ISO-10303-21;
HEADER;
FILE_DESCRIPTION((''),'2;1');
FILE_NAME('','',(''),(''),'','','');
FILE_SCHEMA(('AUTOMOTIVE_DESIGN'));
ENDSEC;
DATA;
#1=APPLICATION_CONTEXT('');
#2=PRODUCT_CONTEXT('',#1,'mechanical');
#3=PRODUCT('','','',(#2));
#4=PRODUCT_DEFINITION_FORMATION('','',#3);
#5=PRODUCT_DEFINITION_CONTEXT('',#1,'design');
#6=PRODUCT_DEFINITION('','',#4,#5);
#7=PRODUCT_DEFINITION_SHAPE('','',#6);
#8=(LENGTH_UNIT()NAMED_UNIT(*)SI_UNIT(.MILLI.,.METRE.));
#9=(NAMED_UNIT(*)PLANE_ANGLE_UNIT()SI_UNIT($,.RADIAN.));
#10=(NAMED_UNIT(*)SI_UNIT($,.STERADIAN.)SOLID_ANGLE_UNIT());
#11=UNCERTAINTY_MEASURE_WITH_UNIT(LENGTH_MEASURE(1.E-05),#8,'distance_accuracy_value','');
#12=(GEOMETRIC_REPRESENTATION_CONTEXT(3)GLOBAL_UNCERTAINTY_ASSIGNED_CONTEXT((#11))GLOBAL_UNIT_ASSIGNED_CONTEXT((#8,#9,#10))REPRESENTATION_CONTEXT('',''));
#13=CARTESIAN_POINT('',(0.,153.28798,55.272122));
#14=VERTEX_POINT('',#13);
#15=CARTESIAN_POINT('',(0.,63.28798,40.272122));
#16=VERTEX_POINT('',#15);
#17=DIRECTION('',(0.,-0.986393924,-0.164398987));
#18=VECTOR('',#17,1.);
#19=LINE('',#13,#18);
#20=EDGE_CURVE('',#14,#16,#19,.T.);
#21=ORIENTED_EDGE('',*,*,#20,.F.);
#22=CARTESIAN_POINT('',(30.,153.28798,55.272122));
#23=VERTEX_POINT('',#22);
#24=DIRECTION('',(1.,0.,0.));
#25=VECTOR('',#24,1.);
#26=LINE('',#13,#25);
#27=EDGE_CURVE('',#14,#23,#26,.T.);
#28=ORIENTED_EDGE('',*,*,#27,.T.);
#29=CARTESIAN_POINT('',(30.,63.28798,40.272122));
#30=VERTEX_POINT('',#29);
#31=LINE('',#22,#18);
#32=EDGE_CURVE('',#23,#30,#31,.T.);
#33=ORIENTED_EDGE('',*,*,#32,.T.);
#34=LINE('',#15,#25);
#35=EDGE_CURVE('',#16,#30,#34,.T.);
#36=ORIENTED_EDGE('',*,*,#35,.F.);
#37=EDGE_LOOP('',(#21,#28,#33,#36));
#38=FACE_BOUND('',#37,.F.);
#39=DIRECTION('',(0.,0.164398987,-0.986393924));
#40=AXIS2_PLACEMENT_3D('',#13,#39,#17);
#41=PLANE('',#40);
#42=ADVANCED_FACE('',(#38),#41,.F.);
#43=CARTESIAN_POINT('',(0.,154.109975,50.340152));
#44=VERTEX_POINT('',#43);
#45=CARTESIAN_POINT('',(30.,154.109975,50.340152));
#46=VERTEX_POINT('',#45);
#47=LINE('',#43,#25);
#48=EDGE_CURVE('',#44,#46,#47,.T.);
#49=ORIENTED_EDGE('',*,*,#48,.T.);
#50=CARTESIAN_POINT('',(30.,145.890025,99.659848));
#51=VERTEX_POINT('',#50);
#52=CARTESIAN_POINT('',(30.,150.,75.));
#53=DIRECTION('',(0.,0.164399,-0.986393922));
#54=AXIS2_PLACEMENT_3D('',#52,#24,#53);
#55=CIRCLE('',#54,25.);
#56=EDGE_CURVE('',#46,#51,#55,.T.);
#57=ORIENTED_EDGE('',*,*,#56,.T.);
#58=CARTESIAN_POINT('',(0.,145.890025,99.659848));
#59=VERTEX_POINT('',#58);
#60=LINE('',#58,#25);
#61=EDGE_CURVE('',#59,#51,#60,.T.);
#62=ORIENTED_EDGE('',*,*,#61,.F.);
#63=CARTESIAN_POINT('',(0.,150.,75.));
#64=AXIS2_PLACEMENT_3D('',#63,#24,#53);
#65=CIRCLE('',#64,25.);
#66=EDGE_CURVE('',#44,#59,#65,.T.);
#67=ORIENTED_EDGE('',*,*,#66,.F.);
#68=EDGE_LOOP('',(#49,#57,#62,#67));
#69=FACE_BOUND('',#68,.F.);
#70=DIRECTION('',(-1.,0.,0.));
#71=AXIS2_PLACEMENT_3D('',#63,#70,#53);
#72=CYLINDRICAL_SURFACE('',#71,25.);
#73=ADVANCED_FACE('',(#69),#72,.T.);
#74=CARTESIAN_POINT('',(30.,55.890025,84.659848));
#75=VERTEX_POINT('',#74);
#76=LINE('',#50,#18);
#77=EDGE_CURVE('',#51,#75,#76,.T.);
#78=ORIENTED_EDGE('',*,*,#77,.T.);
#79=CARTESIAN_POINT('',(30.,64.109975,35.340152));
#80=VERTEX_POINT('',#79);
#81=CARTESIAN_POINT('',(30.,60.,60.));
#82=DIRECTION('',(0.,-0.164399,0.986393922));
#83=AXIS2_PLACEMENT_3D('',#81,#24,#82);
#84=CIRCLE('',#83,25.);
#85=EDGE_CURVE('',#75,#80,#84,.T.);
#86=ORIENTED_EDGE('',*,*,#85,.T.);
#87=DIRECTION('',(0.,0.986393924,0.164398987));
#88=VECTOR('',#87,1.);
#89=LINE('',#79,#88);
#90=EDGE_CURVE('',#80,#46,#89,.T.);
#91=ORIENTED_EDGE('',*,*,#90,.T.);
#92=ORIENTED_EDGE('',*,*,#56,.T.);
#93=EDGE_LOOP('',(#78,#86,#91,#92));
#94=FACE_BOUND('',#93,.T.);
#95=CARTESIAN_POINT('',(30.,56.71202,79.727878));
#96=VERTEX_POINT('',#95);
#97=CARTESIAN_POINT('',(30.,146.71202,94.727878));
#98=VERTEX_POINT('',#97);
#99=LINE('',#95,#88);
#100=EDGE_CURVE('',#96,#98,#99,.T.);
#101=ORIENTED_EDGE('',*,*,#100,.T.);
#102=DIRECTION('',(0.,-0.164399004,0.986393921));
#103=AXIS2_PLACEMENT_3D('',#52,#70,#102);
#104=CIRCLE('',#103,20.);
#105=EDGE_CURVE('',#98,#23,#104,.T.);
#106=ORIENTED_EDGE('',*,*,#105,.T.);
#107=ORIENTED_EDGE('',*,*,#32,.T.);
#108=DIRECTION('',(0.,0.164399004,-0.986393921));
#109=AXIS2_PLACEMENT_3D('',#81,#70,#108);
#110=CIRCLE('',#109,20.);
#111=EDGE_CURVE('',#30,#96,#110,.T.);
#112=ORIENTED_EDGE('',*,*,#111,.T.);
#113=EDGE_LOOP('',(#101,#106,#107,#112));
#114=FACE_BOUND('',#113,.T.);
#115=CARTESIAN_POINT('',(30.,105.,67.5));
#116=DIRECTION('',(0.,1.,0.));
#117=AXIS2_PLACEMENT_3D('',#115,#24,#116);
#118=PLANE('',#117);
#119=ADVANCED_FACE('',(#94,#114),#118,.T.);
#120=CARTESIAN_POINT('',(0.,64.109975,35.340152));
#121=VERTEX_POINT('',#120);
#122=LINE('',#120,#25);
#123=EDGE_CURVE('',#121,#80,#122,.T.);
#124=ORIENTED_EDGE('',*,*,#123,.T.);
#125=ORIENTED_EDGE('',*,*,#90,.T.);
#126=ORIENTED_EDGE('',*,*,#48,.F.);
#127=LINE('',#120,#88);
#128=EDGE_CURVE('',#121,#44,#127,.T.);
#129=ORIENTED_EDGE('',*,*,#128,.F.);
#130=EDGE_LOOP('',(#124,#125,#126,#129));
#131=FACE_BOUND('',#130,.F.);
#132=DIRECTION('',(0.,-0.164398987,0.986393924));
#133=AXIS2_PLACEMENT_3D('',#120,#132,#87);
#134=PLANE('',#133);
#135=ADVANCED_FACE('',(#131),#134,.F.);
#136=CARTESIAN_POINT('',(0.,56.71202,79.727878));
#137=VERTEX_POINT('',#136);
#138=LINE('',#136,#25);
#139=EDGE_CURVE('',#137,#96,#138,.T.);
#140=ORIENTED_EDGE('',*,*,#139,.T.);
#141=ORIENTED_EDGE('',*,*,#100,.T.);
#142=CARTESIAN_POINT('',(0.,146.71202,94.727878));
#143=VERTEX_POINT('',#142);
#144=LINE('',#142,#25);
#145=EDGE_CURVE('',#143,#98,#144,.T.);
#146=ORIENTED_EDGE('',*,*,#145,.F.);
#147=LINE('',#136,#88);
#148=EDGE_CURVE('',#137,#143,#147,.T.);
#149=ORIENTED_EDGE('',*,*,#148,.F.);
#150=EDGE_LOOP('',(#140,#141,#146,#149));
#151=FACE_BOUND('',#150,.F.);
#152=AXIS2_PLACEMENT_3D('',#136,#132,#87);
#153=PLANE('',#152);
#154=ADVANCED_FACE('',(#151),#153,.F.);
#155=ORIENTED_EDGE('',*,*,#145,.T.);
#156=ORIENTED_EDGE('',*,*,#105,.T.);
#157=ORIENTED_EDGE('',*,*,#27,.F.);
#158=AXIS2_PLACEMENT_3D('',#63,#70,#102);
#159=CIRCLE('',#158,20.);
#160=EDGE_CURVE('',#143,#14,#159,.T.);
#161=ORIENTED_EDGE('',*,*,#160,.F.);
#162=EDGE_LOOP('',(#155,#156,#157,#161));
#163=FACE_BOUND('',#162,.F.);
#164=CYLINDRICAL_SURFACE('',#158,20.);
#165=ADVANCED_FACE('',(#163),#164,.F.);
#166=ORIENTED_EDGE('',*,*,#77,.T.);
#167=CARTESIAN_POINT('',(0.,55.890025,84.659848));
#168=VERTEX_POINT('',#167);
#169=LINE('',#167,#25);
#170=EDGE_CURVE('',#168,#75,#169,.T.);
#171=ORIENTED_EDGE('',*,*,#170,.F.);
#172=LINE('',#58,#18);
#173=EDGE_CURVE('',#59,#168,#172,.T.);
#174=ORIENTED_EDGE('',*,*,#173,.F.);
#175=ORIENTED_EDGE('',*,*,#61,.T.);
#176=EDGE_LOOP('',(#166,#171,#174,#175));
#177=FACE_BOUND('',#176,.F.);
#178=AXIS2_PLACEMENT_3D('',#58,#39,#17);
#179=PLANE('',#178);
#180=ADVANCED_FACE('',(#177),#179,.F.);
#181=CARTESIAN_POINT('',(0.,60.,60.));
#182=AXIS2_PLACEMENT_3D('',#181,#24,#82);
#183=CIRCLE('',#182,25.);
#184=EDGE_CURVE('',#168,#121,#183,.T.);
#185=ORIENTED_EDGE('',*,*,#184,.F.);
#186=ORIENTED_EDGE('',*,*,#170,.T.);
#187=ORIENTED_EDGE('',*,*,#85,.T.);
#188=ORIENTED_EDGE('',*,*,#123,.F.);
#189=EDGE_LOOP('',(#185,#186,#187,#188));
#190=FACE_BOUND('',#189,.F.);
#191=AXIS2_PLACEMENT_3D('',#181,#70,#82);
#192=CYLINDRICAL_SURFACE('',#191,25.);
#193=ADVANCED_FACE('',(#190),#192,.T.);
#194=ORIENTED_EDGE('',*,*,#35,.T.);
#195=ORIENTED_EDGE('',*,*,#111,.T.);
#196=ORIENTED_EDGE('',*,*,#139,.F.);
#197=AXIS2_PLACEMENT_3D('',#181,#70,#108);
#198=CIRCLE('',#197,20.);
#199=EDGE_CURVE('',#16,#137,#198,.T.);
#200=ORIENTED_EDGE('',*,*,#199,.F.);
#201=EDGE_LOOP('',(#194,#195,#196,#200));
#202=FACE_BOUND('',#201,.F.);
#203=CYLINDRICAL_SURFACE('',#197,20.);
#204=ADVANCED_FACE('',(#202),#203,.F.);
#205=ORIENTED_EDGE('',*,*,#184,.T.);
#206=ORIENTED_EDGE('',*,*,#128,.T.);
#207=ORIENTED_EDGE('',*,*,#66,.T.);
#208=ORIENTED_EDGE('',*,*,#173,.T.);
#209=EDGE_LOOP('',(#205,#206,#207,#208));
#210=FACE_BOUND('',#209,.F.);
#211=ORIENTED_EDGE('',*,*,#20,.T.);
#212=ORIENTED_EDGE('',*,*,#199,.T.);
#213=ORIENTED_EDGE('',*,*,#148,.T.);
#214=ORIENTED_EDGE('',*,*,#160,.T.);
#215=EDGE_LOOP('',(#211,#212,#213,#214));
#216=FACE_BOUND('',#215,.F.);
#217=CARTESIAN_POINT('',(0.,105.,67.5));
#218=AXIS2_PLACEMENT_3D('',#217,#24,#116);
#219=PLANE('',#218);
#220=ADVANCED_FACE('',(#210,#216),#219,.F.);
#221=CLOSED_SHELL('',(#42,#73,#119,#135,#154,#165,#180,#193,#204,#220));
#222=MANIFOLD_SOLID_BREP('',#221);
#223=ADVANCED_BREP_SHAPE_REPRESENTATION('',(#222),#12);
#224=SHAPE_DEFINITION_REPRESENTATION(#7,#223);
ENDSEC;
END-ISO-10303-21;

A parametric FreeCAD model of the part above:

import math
import FreeCAD as App
import Part
import Sketcher
from FreeCAD import Vector
Q = App.Units.Quantity

doc = App.newDocument("Part")
body = doc.addObject("PartDesign::Body", "Body")

sketch1 = doc.addObject("Sketcher::SketchObject", "Sketch")
body.addObject(sketch1)
sketch1.AttachmentSupport = (doc.YZ_Plane, [""])
sketch1.MapMode = "FlatFace"
sketch1.addGeometry([
    Part.ArcOfCircle(Part.Circle(Vector(60, 60, 0), Vector(0, 0, 1), 25), math.radians(99.462323), math.radians(279.462323)),
    Part.LineSegment(Vector(64.109975, 35.340152, 0), Vector(154.109975, 50.340152, 0)),
    Part.ArcOfCircle(Part.Circle(Vector(150, 75, 0), Vector(0, 0, 1), 25), math.radians(-80.537677), math.radians(99.462323)),
    Part.LineSegment(Vector(145.890025, 99.659848, 0), Vector(55.890025, 84.659848, 0)),
    Part.LineSegment(Vector(153.28798, 55.272122, 0), Vector(63.28798, 40.272122, 0)),
    Part.ArcOfCircle(Part.Circle(Vector(60, 60, 0), Vector(0, 0, 1), 20), math.radians(99.462323), math.radians(279.462323)),
    Part.LineSegment(Vector(56.71202, 79.727878, 0), Vector(146.71202, 94.727878, 0)),
    Part.ArcOfCircle(Part.Circle(Vector(150, 75, 0), Vector(0, 0, 1), 20), math.radians(-80.537677), math.radians(99.462323)),
], False)
sketch1.addConstraint([
    Sketcher.Constraint("Tangent", 0, 2, 1, 1),
    Sketcher.Constraint("Tangent", 1, 2, 2, 1),
    Sketcher.Constraint("Tangent", 2, 2, 3, 1),
    Sketcher.Constraint("Tangent", 3, 2, 0, 1),
    Sketcher.Constraint("Tangent", 4, 2, 5, 2),
    Sketcher.Constraint("Tangent", 5, 1, 6, 1),
    Sketcher.Constraint("Tangent", 6, 2, 7, 2),
    Sketcher.Constraint("Tangent", 7, 1, 4, 1),
    Sketcher.Constraint("Coincident", 5, 3, 0, 3),
    Sketcher.Constraint("Coincident", 7, 3, 2, 3),
    Sketcher.Constraint("Equal", 0, 2),
    Sketcher.Constraint("Equal", 5, 7),
    Sketcher.Constraint("Radius", 0, Q("25 mm")),
    Sketcher.Constraint("Radius", 5, Q("20 mm")),
    Sketcher.Constraint("DistanceX", -1, 1, 0, 3, Q("60 mm")),
    Sketcher.Constraint("DistanceY", -1, 1, 0, 3, Q("60 mm")),
    Sketcher.Constraint("DistanceX", -1, 1, 2, 3, Q("150 mm")),
    Sketcher.Constraint("DistanceY", -1, 1, 2, 3, Q("75 mm")),
])
pad1 = doc.addObject("PartDesign::Pad", "Pad")
body.addObject(pad1)
pad1.Profile = sketch1
pad1.Length = 30

doc.recompute()
